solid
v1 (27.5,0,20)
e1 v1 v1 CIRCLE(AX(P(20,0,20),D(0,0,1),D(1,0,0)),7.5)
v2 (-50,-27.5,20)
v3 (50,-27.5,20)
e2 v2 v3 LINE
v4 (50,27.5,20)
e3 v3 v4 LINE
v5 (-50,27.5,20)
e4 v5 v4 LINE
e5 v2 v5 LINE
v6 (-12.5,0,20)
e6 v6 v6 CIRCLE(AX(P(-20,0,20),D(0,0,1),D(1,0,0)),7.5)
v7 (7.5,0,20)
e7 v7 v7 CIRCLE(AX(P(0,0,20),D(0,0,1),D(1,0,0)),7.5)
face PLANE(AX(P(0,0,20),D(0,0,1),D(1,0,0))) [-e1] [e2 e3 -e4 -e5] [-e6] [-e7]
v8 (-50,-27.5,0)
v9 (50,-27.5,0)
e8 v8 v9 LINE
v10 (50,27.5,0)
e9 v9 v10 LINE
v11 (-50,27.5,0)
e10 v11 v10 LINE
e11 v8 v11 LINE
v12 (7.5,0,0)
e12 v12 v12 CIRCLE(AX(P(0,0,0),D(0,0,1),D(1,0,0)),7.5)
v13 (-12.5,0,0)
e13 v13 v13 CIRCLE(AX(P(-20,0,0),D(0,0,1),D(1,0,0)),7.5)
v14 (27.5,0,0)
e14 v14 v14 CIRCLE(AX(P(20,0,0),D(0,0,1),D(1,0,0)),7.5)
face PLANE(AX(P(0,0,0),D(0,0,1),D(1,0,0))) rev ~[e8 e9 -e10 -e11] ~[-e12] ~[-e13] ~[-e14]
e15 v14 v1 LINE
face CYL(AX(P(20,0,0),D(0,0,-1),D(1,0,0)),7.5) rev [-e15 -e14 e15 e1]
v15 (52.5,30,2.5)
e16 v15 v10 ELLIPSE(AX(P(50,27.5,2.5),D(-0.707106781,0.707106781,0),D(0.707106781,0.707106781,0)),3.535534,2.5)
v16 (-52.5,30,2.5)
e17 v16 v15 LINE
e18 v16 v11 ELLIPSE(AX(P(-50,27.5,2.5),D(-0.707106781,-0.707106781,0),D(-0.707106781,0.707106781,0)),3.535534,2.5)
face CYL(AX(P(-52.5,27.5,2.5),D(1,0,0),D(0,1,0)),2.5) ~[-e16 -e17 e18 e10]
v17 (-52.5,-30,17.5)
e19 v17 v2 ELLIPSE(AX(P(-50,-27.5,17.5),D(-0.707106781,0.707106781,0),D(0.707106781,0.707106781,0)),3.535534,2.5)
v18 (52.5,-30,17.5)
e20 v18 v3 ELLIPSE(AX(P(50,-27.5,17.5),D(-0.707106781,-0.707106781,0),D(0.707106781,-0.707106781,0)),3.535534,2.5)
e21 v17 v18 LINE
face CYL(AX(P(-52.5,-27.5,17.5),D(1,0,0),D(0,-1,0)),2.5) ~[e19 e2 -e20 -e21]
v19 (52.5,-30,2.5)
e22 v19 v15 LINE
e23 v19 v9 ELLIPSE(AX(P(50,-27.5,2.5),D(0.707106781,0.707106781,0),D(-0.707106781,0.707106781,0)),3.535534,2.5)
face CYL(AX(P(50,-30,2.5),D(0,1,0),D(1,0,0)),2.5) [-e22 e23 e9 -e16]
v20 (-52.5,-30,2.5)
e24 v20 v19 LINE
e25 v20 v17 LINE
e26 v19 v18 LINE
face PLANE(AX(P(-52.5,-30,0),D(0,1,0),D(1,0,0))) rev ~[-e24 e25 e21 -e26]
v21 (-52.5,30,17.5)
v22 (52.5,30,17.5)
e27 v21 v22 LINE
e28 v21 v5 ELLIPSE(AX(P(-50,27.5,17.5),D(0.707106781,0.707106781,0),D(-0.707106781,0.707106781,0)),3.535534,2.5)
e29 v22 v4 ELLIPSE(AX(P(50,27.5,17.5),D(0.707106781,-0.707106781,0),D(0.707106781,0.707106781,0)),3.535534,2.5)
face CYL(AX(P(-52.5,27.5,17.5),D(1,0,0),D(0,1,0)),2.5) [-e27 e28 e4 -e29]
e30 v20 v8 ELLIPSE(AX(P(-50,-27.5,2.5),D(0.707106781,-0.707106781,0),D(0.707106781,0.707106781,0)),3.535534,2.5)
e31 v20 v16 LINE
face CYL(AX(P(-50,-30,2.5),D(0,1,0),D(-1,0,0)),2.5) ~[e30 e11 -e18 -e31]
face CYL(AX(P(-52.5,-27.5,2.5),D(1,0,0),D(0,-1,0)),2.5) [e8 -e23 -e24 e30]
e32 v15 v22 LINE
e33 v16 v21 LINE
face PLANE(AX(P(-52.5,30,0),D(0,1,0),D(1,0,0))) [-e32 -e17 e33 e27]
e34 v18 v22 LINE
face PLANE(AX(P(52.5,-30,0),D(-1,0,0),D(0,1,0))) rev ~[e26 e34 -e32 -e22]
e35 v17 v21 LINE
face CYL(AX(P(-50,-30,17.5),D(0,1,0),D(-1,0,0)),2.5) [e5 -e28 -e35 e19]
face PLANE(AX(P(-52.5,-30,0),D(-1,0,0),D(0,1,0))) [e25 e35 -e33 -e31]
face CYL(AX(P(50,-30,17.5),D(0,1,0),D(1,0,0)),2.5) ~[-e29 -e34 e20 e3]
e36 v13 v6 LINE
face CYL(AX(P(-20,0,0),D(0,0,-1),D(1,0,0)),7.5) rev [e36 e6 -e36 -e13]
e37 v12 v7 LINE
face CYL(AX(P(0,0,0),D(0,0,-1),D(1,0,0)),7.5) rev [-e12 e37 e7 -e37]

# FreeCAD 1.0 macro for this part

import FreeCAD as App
import Part
import Sketcher
from FreeCAD import Vector
Q = App.Units.Quantity


def edges_at(feature, points):
    """Names of the edges that pass closest to the given points."""
    edges = feature.Shape.Edges
    near = lambda p: min(range(len(edges)), key=lambda i: edges[i].distToShape(Part.Vertex(*p))[0])
    return sorted({f"Edge{near(p) + 1}" for p in points})

doc = App.newDocument("Part")
body = doc.addObject("PartDesign::Body", "Body")

sketch1 = body.newObject("Sketcher::SketchObject", "Sketch")
sketch1.AttachmentSupport = (doc.getObject("XY_Plane"), [""])
sketch1.MapMode = "FlatFace"
sketch1.addGeometry([
    Part.LineSegment(Vector(-52, 30, 0), Vector(-52, -30, 0)),
    Part.LineSegment(Vector(-52, -30, 0), Vector(52, -30, 0)),
    Part.LineSegment(Vector(52, -30, 0), Vector(52, 30, 0)),
    Part.LineSegment(Vector(52, 30, 0), Vector(-52, 30, 0)),
    Part.Circle(Vector(-20, 0, 0), Vector(0, 0, 1), 8),
    Part.Circle(Vector(0, 0, 0), Vector(0, 0, 1), 8),
    Part.Circle(Vector(20, 0, 0), Vector(0, 0, 1), 8),
], False)
sketch1.addConstraint([
    Sketcher.Constraint("Coincident", 0, 2, 1, 1),
    Sketcher.Constraint("Coincident", 1, 2, 2, 1),
    Sketcher.Constraint("Coincident", 2, 2, 3, 1),
    Sketcher.Constraint("Coincident", 3, 2, 0, 1),
    Sketcher.Constraint("Vertical", 0),
    Sketcher.Constraint("Horizontal", 1),
    Sketcher.Constraint("Vertical", 2),
    Sketcher.Constraint("Horizontal", 3),
    Sketcher.Constraint("Coincident", 5, 3, -1, 1),
    Sketcher.Constraint("Equal", 4, 5),
    Sketcher.Constraint("Equal", 5, 6),
    Sketcher.Constraint("Symmetric", 4, 3, 6, 3, -1, 1),
    Sketcher.Constraint("Symmetric", 0, 2, 2, 2, -1, 1),
    Sketcher.Constraint("PointOnObject", 4, 3, -1),
    Sketcher.Constraint("Diameter", 4, Q("15 mm")),
    Sketcher.Constraint("DistanceX", 1, 1, 1, 2, Q("105 mm")),
    Sketcher.Constraint("DistanceY", 0, 2, 0, 1, Q("60 mm")),
    Sketcher.Constraint("DistanceX", 4, 3, -1, 1, Q("20 mm")),
])
pad1 = body.newObject("PartDesign::Pad", "Pad")
pad1.Profile = sketch1
pad1.Length = 20
doc.recompute()

fillet = body.newObject("PartDesign::Fillet", "Fillet")
fillet.Base = (pad1, edges_at(pad1, [
    (-52.5, 0, 20),
    (0, -30, 20),
    (52.5, 0, 20),
    (0, 30, 20),
    (52.5, 0, 0),
    (0, -30, 0),
    (-52.5, 0, 0),
    (0, 30, 0),
]))
fillet.Radius = 2.5

doc.recompute()
